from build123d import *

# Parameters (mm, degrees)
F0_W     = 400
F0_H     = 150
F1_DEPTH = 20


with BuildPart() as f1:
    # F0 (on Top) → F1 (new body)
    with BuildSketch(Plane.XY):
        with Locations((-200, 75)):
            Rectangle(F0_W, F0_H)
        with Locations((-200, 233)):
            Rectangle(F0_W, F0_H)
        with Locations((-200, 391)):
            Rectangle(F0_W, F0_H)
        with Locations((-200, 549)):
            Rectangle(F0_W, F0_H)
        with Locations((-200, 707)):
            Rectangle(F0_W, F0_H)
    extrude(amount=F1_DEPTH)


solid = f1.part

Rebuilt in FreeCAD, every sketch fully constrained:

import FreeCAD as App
import Part
import Sketcher

V = App.Vector
Q = App.Units.Quantity


def add_polygon(sketch, points):
    """Adds a closed chain of lines whose ends are joined by coincident constraints."""
    first, n = sketch.GeometryCount, len(points)
    for a, b in zip(points, points[1:] + points[:1]):
        sketch.addGeometry(Part.LineSegment(App.Vector(*a, 0), App.Vector(*b, 0)), False)
    for i in range(n):
        sketch.addConstraint(Sketcher.Constraint("Coincident", first + i, 2, first + (i + 1) % n, 1))

doc = App.newDocument("Part")
body = doc.addObject("PartDesign::Body", "Body")
body.AllowCompound = True

# Sketch on XY plane
sketch1 = body.newObject("Sketcher::SketchObject", "Sketch")
sketch1.AttachmentSupport = (doc.getObject("XY_Plane"), [""])
sketch1.MapMode = "FlatFace"
add_polygon(sketch1, [(-400, 150), (-400, 0), (0, 0), (0, 150)])  # lines 0-3
add_polygon(sketch1, [(-400, 308), (-400, 158), (0, 158), (0, 308)])  # lines 4-7
add_polygon(sketch1, [(-400, 466), (-400, 316), (0, 316), (0, 466)])  # lines 8-11
add_polygon(sketch1, [(-400, 624), (-400, 474), (0, 474), (0, 624)])  # lines 12-15
add_polygon(sketch1, [(-400, 782), (-400, 632), (0, 632), (0, 782)])  # lines 16-19
sketch1.addConstraint([
    Sketcher.Constraint("Vertical", 0),
    Sketcher.Constraint("Horizontal", 1),
    Sketcher.Constraint("Vertical", 2),
    Sketcher.Constraint("Horizontal", 3),
    Sketcher.Constraint("Vertical", 4),
    Sketcher.Constraint("Horizontal", 5),
    Sketcher.Constraint("Vertical", 6),
    Sketcher.Constraint("Horizontal", 7),
    Sketcher.Constraint("Vertical", 8),
    Sketcher.Constraint("Horizontal", 9),
    Sketcher.Constraint("Vertical", 10),
    Sketcher.Constraint("Horizontal", 11),
    Sketcher.Constraint("Vertical", 12),
    Sketcher.Constraint("Horizontal", 13),
    Sketcher.Constraint("Vertical", 14),
    Sketcher.Constraint("Horizontal", 15),
    Sketcher.Constraint("Vertical", 16),
    Sketcher.Constraint("Horizontal", 17),
    Sketcher.Constraint("Vertical", 18),
    Sketcher.Constraint("Horizontal", 19),
    Sketcher.Constraint("Coincident", 1, 2, -1, 1),
    Sketcher.Constraint("PointOnObject", 5, 2, -2),
    Sketcher.Constraint("PointOnObject", 9, 2, -2),
    Sketcher.Constraint("PointOnObject", 13, 2, -2),
    Sketcher.Constraint("PointOnObject", 17, 2, -2),
    Sketcher.Constraint("Vertical", 3, 2, 4, 2),
    Sketcher.Constraint("Vertical", 7, 2, 8, 2),
    Sketcher.Constraint("Vertical", 11, 2, 12, 2),
    Sketcher.Constraint("Vertical", 15, 2, 16, 2),
    Sketcher.Constraint("Equal", 2, 4),
    Sketcher.Constraint("Equal", 6, 8),
    Sketcher.Constraint("Equal", 10, 12),
    Sketcher.Constraint("Equal", 14, 16),
    Sketcher.Constraint("DistanceX", 1, 1, 1, 2, Q("400 mm")),
    Sketcher.Constraint("DistanceY", 0, 2, 0, 1, Q("150 mm")),
    Sketcher.Constraint("DistanceY", -1, 1, 4, 2, Q("158 mm")),
    Sketcher.Constraint("DistanceY", -1, 1, 8, 2, Q("316 mm")),
    Sketcher.Constraint("DistanceY", -1, 1, 12, 2, Q("474 mm")),
    Sketcher.Constraint("DistanceY", -1, 1, 16, 2, Q("632 mm")),
])
pad1 = body.newObject("PartDesign::Pad", "Pad")
pad1.Profile = sketch1
pad1.Length = 20

doc.recompute()
